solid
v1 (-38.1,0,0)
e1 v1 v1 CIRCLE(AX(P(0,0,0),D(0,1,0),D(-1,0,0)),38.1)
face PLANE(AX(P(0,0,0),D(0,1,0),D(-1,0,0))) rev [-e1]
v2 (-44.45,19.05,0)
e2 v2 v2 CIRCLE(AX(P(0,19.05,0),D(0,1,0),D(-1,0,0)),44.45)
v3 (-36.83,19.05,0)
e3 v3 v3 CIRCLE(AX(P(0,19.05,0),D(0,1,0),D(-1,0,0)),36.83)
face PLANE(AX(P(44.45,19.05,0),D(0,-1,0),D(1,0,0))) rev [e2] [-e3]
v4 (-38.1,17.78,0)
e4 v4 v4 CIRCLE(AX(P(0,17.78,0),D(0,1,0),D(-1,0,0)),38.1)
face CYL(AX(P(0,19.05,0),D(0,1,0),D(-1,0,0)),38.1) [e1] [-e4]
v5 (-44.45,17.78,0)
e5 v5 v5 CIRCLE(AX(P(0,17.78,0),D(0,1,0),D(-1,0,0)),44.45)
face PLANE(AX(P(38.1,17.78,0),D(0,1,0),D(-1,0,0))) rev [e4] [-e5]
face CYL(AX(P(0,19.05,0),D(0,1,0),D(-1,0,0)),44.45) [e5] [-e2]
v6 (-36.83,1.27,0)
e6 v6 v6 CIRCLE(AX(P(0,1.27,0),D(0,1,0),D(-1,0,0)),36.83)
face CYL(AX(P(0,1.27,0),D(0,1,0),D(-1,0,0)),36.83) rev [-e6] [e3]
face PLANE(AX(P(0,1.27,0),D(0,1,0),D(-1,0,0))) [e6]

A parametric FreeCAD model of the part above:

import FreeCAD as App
import Part
import Sketcher
Q = App.Units.Quantity


def add_polygon(sketch, points):
    """Adds a closed chain of lines whose ends are joined by coincident constraints."""
    first, n = sketch.GeometryCount, len(points)
    for a, b in zip(points, points[1:] + points[:1]):
        sketch.addGeometry(Part.LineSegment(App.Vector(*a, 0), App.Vector(*b, 0)), False)
    for i in range(n):
        sketch.addConstraint(Sketcher.Constraint("Coincident", first + i, 2, first + (i + 1) % n, 1))

doc = App.newDocument("Part")
body = doc.addObject("PartDesign::Body", "Body")

# Sketch on XY plane
sketch1 = body.newObject("Sketcher::SketchObject", "Sketch")
sketch1.AttachmentSupport = (doc.getObject("XY_Plane"), [""])
sketch1.MapMode = "FlatFace"
add_polygon(sketch1, [(0, 0), (38.1, 0), (38.1, 17.8), (44.5, 17.8), (44.5, 19.1), (0, 19.1)])  # lines 0-5
sketch1.addConstraint(Sketcher.Constraint("Horizontal", 0))
sketch1.addConstraint(Sketcher.Constraint("Vertical", 1))
sketch1.addConstraint(Sketcher.Constraint("Horizontal", 2))
sketch1.addConstraint(Sketcher.Constraint("Vertical", 3))
sketch1.addConstraint(Sketcher.Constraint("Horizontal", 4))
sketch1.addConstraint(Sketcher.Constraint("Vertical", 5))
sketch1.addConstraint(Sketcher.Constraint("Coincident", 5, 2, -1, 1))
sketch1.addConstraint(Sketcher.Constraint("DistanceX", 0, 1, 0, 2, Q("1.5 in")))
sketch1.addConstraint(Sketcher.Constraint("DistanceY", 1, 1, 1, 2, Q("0.7 in")))
sketch1.addConstraint(Sketcher.Constraint("DistanceX", 2, 1, 2, 2, Q("0.25 in")))
sketch1.addConstraint(Sketcher.Constraint("DistanceY", 3, 1, 3, 2, Q("0.05 in")))
revolution = body.newObject("PartDesign::Revolution", "Revolution")
revolution.Profile = sketch1
revolution.ReferenceAxis = (sketch1, ["V_Axis"])
revolution.Angle = 360

# Sketch on XZ plane
sketch2 = body.newObject("Sketcher::SketchObject", "Sketch001")
sketch2.AttachmentSupport = (doc.getObject("XZ_Plane"), [""])
sketch2.MapMode = "FlatFace"
sketch2.AttachmentOffset = App.Placement(App.Vector(0, 0, -0.75 * 25.4), App.Rotation())
sketch2.addGeometry(Part.Circle(App.Vector(0, 0, 0), App.Vector(0, 0, 1), 37), False)
sketch2.addConstraint(Sketcher.Constraint("Coincident", 0, 3, -1, 1))
sketch2.addConstraint(Sketcher.Constraint("Diameter", 0, Q("2.9 in")))
pocket1 = body.newObject("PartDesign::Pocket", "Pocket")
pocket1.Profile = sketch2
pocket1.Length = Q("0.7 in")
pocket1.Reversed = True

doc.recompute()
